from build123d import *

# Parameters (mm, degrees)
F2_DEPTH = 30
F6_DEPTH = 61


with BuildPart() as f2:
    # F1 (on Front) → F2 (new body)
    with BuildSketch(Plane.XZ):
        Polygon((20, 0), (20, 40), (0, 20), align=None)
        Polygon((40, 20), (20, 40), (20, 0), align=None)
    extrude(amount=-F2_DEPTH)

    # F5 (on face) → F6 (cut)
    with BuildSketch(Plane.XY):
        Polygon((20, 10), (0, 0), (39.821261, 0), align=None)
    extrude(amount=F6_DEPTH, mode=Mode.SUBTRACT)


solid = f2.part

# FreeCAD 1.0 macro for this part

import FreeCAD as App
import Part
import Sketcher


def add_polygon(sketch, points):
    """Adds a closed chain of lines whose ends are joined by coincident constraints."""
    first, n = sketch.GeometryCount, len(points)
    for a, b in zip(points, points[1:] + points[:1]):
        sketch.addGeometry(Part.LineSegment(App.Vector(*a, 0), App.Vector(*b, 0)), False)
    for i in range(n):
        sketch.addConstraint(Sketcher.Constraint("Coincident", first + i, 2, first + (i + 1) % n, 1))

doc = App.newDocument("Part")
body = doc.addObject("PartDesign::Body", "Body")

# Sketch on XZ plane
sketch1 = body.newObject("Sketcher::SketchObject", "Sketch")
sketch1.AttachmentSupport = (doc.getObject("XZ_Plane"), [""])
sketch1.MapMode = "FlatFace"
add_polygon(sketch1, [(20, 40), (0, 20), (20, 0), (40, 20)])  # lines 0-3
sketch1.addConstraint([
    Sketcher.Constraint("PointOnObject", 0, 2, -2),
    Sketcher.Constraint("PointOnObject", 1, 2, -1),
    Sketcher.Constraint("Perpendicular", 0, 1),
    Sketcher.Constraint("Perpendicular", 1, 2),
    Sketcher.Constraint("Perpendicular", 2, 3),
    Sketcher.Constraint("Horizontal", 0, 2, 2, 2),
    Sketcher.Constraint("Vertical", 1, 2, 3, 2),
    Sketcher.Constraint("DistanceY", -1, 1, 0, 2, 20.0),
])
pad1 = body.newObject("PartDesign::Pad", "Pad")
pad1.Profile = sketch1
pad1.Length = 30
pad1.Reversed = True

# Sketch on XY plane
sketch2 = body.newObject("Sketcher::SketchObject", "Sketch001")
sketch2.AttachmentSupport = (doc.getObject("XY_Plane"), [""])
sketch2.MapMode = "FlatFace"
add_polygon(sketch2, [(20, 10), (0, 0), (39.821261, 0)])  # lines 0-2
sketch2.addConstraint([
    Sketcher.Constraint("Horizontal", 1),
    Sketcher.Constraint("Coincident", 0, 2, -1, 1),
    Sketcher.Constraint("DistanceX", -1, 1, 2, 2, 20.0),
    Sketcher.Constraint("DistanceY", -1, 1, 2, 2, 10.0),
    Sketcher.Constraint("DistanceX", 1, 1, 1, 2, 39.821261),
])
pocket1 = body.newObject("PartDesign::Pocket", "Pocket")
pocket1.Profile = sketch2
pocket1.Length = 61
pocket1.Reversed = True

doc.recompute()
